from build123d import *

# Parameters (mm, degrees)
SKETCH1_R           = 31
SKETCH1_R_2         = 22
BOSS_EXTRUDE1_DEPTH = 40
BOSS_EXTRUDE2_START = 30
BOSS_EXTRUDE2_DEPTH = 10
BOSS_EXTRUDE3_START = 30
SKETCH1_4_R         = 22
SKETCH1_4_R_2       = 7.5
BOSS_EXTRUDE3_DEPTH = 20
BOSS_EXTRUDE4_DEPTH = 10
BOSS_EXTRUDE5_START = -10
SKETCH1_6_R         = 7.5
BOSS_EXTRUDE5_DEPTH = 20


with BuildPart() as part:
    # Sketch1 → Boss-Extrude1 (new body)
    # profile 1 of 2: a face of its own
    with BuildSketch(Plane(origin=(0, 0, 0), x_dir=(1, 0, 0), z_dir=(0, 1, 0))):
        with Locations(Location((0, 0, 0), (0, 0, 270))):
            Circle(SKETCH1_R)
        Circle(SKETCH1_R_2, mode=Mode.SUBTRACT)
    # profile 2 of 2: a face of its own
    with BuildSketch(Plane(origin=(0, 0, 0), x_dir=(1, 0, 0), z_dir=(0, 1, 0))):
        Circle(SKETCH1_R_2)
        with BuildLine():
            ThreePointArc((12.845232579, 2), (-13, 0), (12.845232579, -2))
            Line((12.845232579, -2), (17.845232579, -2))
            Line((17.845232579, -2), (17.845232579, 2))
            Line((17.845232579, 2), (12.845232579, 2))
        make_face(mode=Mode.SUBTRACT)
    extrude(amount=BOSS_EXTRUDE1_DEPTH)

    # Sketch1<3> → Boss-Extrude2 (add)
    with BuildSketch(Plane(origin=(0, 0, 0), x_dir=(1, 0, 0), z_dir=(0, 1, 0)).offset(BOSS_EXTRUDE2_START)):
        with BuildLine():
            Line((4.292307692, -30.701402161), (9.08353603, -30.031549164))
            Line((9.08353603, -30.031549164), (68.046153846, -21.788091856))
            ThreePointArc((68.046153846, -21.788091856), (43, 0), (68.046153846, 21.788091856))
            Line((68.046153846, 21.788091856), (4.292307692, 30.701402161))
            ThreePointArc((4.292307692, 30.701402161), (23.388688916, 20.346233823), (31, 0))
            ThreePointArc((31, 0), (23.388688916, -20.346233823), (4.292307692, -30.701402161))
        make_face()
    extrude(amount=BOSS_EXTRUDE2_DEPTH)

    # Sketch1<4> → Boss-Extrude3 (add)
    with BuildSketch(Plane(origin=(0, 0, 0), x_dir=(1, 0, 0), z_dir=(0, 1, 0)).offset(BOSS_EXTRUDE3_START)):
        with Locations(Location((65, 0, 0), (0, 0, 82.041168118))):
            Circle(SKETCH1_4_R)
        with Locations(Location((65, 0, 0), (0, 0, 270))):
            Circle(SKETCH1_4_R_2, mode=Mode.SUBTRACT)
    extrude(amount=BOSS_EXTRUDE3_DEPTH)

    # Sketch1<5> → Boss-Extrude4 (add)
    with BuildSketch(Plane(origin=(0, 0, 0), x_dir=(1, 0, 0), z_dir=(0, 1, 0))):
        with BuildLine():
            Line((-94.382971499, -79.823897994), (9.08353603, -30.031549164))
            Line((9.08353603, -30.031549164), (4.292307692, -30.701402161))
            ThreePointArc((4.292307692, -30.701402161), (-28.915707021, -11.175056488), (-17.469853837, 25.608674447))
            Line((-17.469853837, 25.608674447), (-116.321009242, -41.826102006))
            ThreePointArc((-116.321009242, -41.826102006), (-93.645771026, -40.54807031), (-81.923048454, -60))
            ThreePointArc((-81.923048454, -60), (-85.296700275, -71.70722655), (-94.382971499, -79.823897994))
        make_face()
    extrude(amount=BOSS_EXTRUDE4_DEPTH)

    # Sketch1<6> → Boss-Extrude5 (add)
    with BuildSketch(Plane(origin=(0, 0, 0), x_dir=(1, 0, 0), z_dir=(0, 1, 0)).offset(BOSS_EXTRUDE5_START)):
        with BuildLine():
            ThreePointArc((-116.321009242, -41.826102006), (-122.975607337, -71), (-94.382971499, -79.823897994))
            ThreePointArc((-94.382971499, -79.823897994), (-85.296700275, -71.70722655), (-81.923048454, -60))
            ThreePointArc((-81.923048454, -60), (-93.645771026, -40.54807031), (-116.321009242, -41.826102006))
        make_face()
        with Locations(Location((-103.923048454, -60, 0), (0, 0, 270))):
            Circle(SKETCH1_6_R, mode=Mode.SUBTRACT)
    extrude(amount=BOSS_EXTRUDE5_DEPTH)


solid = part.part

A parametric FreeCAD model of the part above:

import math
import FreeCAD as App
import Part
import Sketcher
Q = App.Units.Quantity

doc = App.newDocument("Part")
params = doc.addObject("Spreadsheet::Sheet", "Params")
for row, (alias, value) in enumerate([
    ("sketch1_diameter", "62 mm"),
    ("sketch1_radius", "13 mm"),
    ("sketch1_width", "5 mm"),
    ("sketch1_height", "4 mm"),
    ("pad1_length", "40 mm"),
    ("sketch2_radius", "22 mm"),
    ("sketch2_radius2", "31 mm"),
    ("pad2_length", "10 mm"),
    ("sketch3_diameter", "44 mm"),
    ("sketch3_diameter2", "15 mm"),
    ("pad3_length", "20 mm"),
    ("sketch4_radius", "31 mm"),
    ("sketch4_radius2", "22 mm"),
    ("pad4_length", "10 mm"),
    ("sketch5_diameter", "15 mm"),
    ("sketch5_radius", "22 mm"),
    ("pad5_length", "20 mm"),
], start=1):
    params.set(f"A{row}", alias)
    params.set(f"B{row}", "=" + value)
    params.setAlias(f"B{row}", alias)

body = doc.addObject("PartDesign::Body", "Body")

# Sketch on XZ plane
sketch1 = doc.addObject("Sketcher::SketchObject", "Sketch")
body.addObject(sketch1)
sketch1.AttachmentSupport = (doc.XZ_Plane, [""])
sketch1.MapMode = "FlatFace"
sketch1.addGeometry(Part.Circle(App.Vector(0, 0, 0), App.Vector(0, 0, 1), 31), False)
sketch1.addGeometry(Part.LineSegment(App.Vector(12.845233, -2, 0), App.Vector(17.845233, -2, 0)), False)
sketch1.addGeometry(Part.LineSegment(App.Vector(17.845233, -2, 0), App.Vector(17.845233, 2, 0)), False)
sketch1.addGeometry(Part.LineSegment(App.Vector(17.845233, 2, 0), App.Vector(12.845233, 2, 0)), False)
sketch1.addGeometry(Part.ArcOfCircle(Part.Circle(App.Vector(0, 0, 0), App.Vector(0, 0, 1), 13), math.radians(8.849883), math.radians(351.150117)), False)
sketch1.addConstraint(Sketcher.Constraint("Coincident", 1, 2, 2, 1))
sketch1.addConstraint(Sketcher.Constraint("Coincident", 2, 2, 3, 1))
sketch1.addConstraint(Sketcher.Constraint("Coincident", 3, 2, 4, 1))
sketch1.addConstraint(Sketcher.Constraint("Coincident", 4, 2, 1, 1))
sketch1.addConstraint(Sketcher.Constraint("Horizontal", 1))
sketch1.addConstraint(Sketcher.Constraint("Vertical", 2))
sketch1.addConstraint(Sketcher.Constraint("Horizontal", 3))
sketch1.addConstraint(Sketcher.Constraint("Coincident", 0, 3, -1, 1))
sketch1.addConstraint(Sketcher.Constraint("Coincident", 4, 3, -1, 1))
sketch1.addConstraint(Sketcher.Constraint("Vertical", 3, 2, 4, 2))
sketch1.addConstraint(Sketcher.Constraint("Diameter", 0, Q("62 mm")))
sketch1.addConstraint(Sketcher.Constraint("Radius", 4, Q("13 mm")))
sketch1.addConstraint(Sketcher.Constraint("DistanceX", 1, 1, 1, 2, Q("5 mm")))
sketch1.addConstraint(Sketcher.Constraint("DistanceY", 2, 1, 2, 2, Q("4 mm")))
sketch1.setExpression("Constraints[10]", "Params.sketch1_diameter")
sketch1.setExpression("Constraints[11]", "Params.sketch1_radius")
sketch1.setExpression("Constraints[12]", "Params.sketch1_width")
sketch1.setExpression("Constraints[13]", "Params.sketch1_height")
pad1 = doc.addObject("PartDesign::Pad", "Pad")
body.addObject(pad1)
pad1.Profile = sketch1
pad1.setExpression("Length", "Params.pad1_length")
pad1.Reversed = True

# Sketch on XZ plane
sketch2 = doc.addObject("Sketcher::SketchObject", "Sketch001")
body.addObject(sketch2)
sketch2.AttachmentSupport = (doc.XZ_Plane, [""])
sketch2.MapMode = "FlatFace"
sketch2.AttachmentOffset = App.Placement(App.Vector(0, 0, -30), App.Rotation())
sketch2.addGeometry(Part.LineSegment(App.Vector(4.292308, 30.701402, 0), App.Vector(9.083536, 30.031549, 0)), False)
sketch2.addGeometry(Part.LineSegment(App.Vector(9.083536, 30.031549, 0), App.Vector(68.046154, 21.788092, 0)), False)
sketch2.addGeometry(Part.ArcOfCircle(Part.Circle(App.Vector(65, 0, 0), App.Vector(0, 0, 1), 22), math.radians(82.041168), math.radians(277.958832)), False)
sketch2.addGeometry(Part.LineSegment(App.Vector(68.046154, -21.788092, 0), App.Vector(4.292308, -30.701402, 0)), False)
sketch2.addGeometry(Part.ArcOfCircle(Part.Circle(App.Vector(0, 0, 0), App.Vector(0, 0, 1), 31), math.radians(-82.041168), math.radians(0)), False)
sketch2.addGeometry(Part.ArcOfCircle(Part.Circle(App.Vector(0, 0, 0), App.Vector(0, 0, 1), 31), math.radians(0), math.radians(82.041168)), False)
sketch2.addConstraint(Sketcher.Constraint("Coincident", 0, 2, 1, 1))
sketch2.addConstraint(Sketcher.Constraint("Tangent", 1, 2, 2, 1))
sketch2.addConstraint(Sketcher.Constraint("Tangent", 2, 2, 3, 1))
sketch2.addConstraint(Sketcher.Constraint("Tangent", 3, 2, 4, 1))
sketch2.addConstraint(Sketcher.Constraint("Tangent", 4, 2, 5, 1))
sketch2.addConstraint(Sketcher.Constraint("Tangent", 5, 2, 0, 1))
sketch2.addConstraint(Sketcher.Constraint("Coincident", 4, 3, -1, 1))
sketch2.addConstraint(Sketcher.Constraint("Equal", 4, 5))
sketch2.addConstraint(Sketcher.Constraint("Symmetric", 1, 2, 2, 2, -1))
sketch2.addConstraint(Sketcher.Constraint("PointOnObject", 4, 2, -1))
sketch2.addConstraint(Sketcher.Constraint("Radius", 2, Q("22 mm")))
sketch2.addConstraint(Sketcher.Constraint("Radius", 4, Q("31 mm")))
sketch2.addConstraint(Sketcher.Constraint("DistanceX", -1, 1, 2, 3, Q("65 mm")))
sketch2.addConstraint(Sketcher.Constraint("Distance", 1, Q("59.536081 mm")))
sketch2.setExpression("Constraints[10]", "Params.sketch2_radius")
sketch2.setExpression("Constraints[11]", "Params.sketch2_radius2")
pad2 = doc.addObject("PartDesign::Pad", "Pad001")
body.addObject(pad2)
pad2.Profile = sketch2
pad2.setExpression("Length", "Params.pad2_length")
pad2.Reversed = True

# Sketch on XZ plane
sketch3 = doc.addObject("Sketcher::SketchObject", "Sketch002")
body.addObject(sketch3)
sketch3.AttachmentSupport = (doc.XZ_Plane, [""])
sketch3.MapMode = "FlatFace"
sketch3.AttachmentOffset = App.Placement(App.Vector(0, 0, -30), App.Rotation())
sketch3.addGeometry(Part.Circle(App.Vector(65, 0, 0), App.Vector(0, 0, 1), 22), False)
sketch3.addGeometry(Part.Circle(App.Vector(65, 0, 0), App.Vector(0, 0, 1), 7.5), False)
sketch3.addConstraint(Sketcher.Constraint("Coincident", 1, 3, 0, 3))
sketch3.addConstraint(Sketcher.Constraint("PointOnObject", 0, 3, -1))
sketch3.addConstraint(Sketcher.Constraint("Diameter", 0, Q("44 mm")))
sketch3.addConstraint(Sketcher.Constraint("Diameter", 1, Q("15 mm")))
sketch3.addConstraint(Sketcher.Constraint("DistanceX", -1, 1, 0, 3, Q("65 mm")))
sketch3.setExpression("Constraints[2]", "Params.sketch3_diameter")
sketch3.setExpression("Constraints[3]", "Params.sketch3_diameter2")
pad3 = doc.addObject("PartDesign::Pad", "Pad002")
body.addObject(pad3)
pad3.Profile = sketch3
pad3.setExpression("Length", "Params.pad3_length")
pad3.Reversed = True

# Sketch on XZ plane
sketch4 = doc.addObject("Sketcher::SketchObject", "Sketch003")
body.addObject(sketch4)
sketch4.AttachmentSupport = (doc.XZ_Plane, [""])
sketch4.MapMode = "FlatFace"
sketch4.addGeometry(Part.LineSegment(App.Vector(-94.382971, 79.823898, 0), App.Vector(9.083536, 30.031549, 0)), False)
sketch4.addGeometry(Part.LineSegment(App.Vector(9.083536, 30.031549, 0), App.Vector(4.292308, 30.701402, 0)), False)
sketch4.addGeometry(Part.ArcOfCircle(Part.Circle(App.Vector(0, 0, 0), App.Vector(0, 0, 1), 31), math.radians(82.041168), math.radians(235.698778)), False)
sketch4.addGeometry(Part.LineSegment(App.Vector(-17.469854, -25.608674, 0), App.Vector(-116.321009, 41.826102, 0)), False)
sketch4.addGeometry(Part.ArcOfCircle(Part.Circle(App.Vector(-103.923048, 60, 0), App.Vector(0, 0, 1), 22), math.radians(-124.301222), math.radians(0)), False)
sketch4.addGeometry(Part.ArcOfCircle(Part.Circle(App.Vector(-103.923048, 60, 0), App.Vector(0, 0, 1), 22), math.radians(0), math.radians(64.301222)), False)
sketch4.addConstraint(Sketcher.Constraint("Coincident", 0, 2, 1, 1))
sketch4.addConstraint(Sketcher.Constraint("Tangent", 1, 2, 2, 1))
sketch4.addConstraint(Sketcher.Constraint("Tangent", 2, 2, 3, 1))
sketch4.addConstraint(Sketcher.Constraint("Tangent", 3, 2, 4, 1))
sketch4.addConstraint(Sketcher.Constraint("Tangent", 4, 2, 5, 1))
sketch4.addConstraint(Sketcher.Constraint("Tangent", 5, 2, 0, 1))
sketch4.addConstraint(Sketcher.Constraint("Coincident", 2, 3, -1, 1))
sketch4.addConstraint(Sketcher.Constraint("Equal", 4, 5))
sketch4.addConstraint(Sketcher.Constraint("Horizontal", 5, 3, 4, 2))
sketch4.addConstraint(Sketcher.Constraint("Radius", 2, Q("31 mm")))
sketch4.addConstraint(Sketcher.Constraint("Radius", 4, Q("22 mm")))
sketch4.addConstraint(Sketcher.Constraint("DistanceY", -1, 1, 4, 3, Q("60 mm")))
sketch4.addConstraint(Sketcher.Constraint("DistanceY", 1, 2, 3, 2, Q("11.1247 mm")))
sketch4.addConstraint(Sketcher.Constraint("DistanceX", 4, 3, -1, 1, Q("103.923048 mm")))
sketch4.addConstraint(Sketcher.Constraint("DistanceY", -1, 1, 0, 2, Q("30.031549 mm")))
sketch4.setExpression("Constraints[9]", "Params.sketch4_radius")
sketch4.setExpression("Constraints[10]", "Params.sketch4_radius2")
pad4 = doc.addObject("PartDesign::Pad", "Pad003")
body.addObject(pad4)
pad4.Profile = sketch4
pad4.setExpression("Length", "Params.pad4_length")
pad4.Reversed = True

# Sketch on XZ plane
sketch5 = doc.addObject("Sketcher::SketchObject", "Sketch004")
body.addObject(sketch5)
sketch5.AttachmentSupport = (doc.XZ_Plane, [""])
sketch5.MapMode = "FlatFace"
sketch5.AttachmentOffset = App.Placement(App.Vector(0, 0, 10), App.Rotation())
sketch5.addGeometry(Part.ArcOfCircle(Part.Circle(App.Vector(-103.923048, 60, 0), App.Vector(0, 0, 1), 22), math.radians(64.301222), math.radians(235.698778)), False)
sketch5.addGeometry(Part.ArcOfCircle(Part.Circle(App.Vector(-103.923048, 60, 0), App.Vector(0, 0, 1), 22), math.radians(0), math.radians(64.301222)), False)
sketch5.addGeometry(Part.ArcOfCircle(Part.Circle(App.Vector(-103.923048, 60, 0), App.Vector(0, 0, 1), 22), math.radians(-124.301222), math.radians(0)), False)
sketch5.addGeometry(Part.Circle(App.Vector(-103.923048, 60, 0), App.Vector(0, 0, 1), 7.5), False)
sketch5.addConstraint(Sketcher.Constraint("Tangent", 0, 1, 1, 2))
sketch5.addConstraint(Sketcher.Constraint("Tangent", 1, 1, 2, 2))
sketch5.addConstraint(Sketcher.Constraint("Tangent", 2, 1, 0, 2))
sketch5.addConstraint(Sketcher.Constraint("Coincident", 3, 3, 0, 3))
sketch5.addConstraint(Sketcher.Constraint("Horizontal", 3, 3, 1, 1))
sketch5.addConstraint(Sketcher.Constraint("Diameter", 3, Q("15 mm")))
sketch5.addConstraint(Sketcher.Constraint("Radius", 0, Q("22 mm")))
sketch5.addConstraint(Sketcher.Constraint("DistanceY", -1, 1, 0, 3, Q("60 mm")))
sketch5.addConstraint(Sketcher.Constraint("DistanceX", 0, 3, -1, 1, Q("103.923048 mm")))
sketch5.addConstraint(Sketcher.Constraint("DistanceX", 0, 1, -1, 1, Q("94.382971 mm")))
sketch5.addConstraint(Sketcher.Constraint("DistanceX", 2, 1, -1, 1, Q("116.321009 mm")))
sketch5.setExpression("Constraints[5]", "Params.sketch5_diameter")
sketch5.setExpression("Constraints[6]", "Params.sketch5_radius")
pad5 = doc.addObject("PartDesign::Pad", "Pad004")
body.addObject(pad5)
pad5.Profile = sketch5
pad5.setExpression("Length", "Params.pad5_length")
pad5.Reversed = True

doc.recompute()
